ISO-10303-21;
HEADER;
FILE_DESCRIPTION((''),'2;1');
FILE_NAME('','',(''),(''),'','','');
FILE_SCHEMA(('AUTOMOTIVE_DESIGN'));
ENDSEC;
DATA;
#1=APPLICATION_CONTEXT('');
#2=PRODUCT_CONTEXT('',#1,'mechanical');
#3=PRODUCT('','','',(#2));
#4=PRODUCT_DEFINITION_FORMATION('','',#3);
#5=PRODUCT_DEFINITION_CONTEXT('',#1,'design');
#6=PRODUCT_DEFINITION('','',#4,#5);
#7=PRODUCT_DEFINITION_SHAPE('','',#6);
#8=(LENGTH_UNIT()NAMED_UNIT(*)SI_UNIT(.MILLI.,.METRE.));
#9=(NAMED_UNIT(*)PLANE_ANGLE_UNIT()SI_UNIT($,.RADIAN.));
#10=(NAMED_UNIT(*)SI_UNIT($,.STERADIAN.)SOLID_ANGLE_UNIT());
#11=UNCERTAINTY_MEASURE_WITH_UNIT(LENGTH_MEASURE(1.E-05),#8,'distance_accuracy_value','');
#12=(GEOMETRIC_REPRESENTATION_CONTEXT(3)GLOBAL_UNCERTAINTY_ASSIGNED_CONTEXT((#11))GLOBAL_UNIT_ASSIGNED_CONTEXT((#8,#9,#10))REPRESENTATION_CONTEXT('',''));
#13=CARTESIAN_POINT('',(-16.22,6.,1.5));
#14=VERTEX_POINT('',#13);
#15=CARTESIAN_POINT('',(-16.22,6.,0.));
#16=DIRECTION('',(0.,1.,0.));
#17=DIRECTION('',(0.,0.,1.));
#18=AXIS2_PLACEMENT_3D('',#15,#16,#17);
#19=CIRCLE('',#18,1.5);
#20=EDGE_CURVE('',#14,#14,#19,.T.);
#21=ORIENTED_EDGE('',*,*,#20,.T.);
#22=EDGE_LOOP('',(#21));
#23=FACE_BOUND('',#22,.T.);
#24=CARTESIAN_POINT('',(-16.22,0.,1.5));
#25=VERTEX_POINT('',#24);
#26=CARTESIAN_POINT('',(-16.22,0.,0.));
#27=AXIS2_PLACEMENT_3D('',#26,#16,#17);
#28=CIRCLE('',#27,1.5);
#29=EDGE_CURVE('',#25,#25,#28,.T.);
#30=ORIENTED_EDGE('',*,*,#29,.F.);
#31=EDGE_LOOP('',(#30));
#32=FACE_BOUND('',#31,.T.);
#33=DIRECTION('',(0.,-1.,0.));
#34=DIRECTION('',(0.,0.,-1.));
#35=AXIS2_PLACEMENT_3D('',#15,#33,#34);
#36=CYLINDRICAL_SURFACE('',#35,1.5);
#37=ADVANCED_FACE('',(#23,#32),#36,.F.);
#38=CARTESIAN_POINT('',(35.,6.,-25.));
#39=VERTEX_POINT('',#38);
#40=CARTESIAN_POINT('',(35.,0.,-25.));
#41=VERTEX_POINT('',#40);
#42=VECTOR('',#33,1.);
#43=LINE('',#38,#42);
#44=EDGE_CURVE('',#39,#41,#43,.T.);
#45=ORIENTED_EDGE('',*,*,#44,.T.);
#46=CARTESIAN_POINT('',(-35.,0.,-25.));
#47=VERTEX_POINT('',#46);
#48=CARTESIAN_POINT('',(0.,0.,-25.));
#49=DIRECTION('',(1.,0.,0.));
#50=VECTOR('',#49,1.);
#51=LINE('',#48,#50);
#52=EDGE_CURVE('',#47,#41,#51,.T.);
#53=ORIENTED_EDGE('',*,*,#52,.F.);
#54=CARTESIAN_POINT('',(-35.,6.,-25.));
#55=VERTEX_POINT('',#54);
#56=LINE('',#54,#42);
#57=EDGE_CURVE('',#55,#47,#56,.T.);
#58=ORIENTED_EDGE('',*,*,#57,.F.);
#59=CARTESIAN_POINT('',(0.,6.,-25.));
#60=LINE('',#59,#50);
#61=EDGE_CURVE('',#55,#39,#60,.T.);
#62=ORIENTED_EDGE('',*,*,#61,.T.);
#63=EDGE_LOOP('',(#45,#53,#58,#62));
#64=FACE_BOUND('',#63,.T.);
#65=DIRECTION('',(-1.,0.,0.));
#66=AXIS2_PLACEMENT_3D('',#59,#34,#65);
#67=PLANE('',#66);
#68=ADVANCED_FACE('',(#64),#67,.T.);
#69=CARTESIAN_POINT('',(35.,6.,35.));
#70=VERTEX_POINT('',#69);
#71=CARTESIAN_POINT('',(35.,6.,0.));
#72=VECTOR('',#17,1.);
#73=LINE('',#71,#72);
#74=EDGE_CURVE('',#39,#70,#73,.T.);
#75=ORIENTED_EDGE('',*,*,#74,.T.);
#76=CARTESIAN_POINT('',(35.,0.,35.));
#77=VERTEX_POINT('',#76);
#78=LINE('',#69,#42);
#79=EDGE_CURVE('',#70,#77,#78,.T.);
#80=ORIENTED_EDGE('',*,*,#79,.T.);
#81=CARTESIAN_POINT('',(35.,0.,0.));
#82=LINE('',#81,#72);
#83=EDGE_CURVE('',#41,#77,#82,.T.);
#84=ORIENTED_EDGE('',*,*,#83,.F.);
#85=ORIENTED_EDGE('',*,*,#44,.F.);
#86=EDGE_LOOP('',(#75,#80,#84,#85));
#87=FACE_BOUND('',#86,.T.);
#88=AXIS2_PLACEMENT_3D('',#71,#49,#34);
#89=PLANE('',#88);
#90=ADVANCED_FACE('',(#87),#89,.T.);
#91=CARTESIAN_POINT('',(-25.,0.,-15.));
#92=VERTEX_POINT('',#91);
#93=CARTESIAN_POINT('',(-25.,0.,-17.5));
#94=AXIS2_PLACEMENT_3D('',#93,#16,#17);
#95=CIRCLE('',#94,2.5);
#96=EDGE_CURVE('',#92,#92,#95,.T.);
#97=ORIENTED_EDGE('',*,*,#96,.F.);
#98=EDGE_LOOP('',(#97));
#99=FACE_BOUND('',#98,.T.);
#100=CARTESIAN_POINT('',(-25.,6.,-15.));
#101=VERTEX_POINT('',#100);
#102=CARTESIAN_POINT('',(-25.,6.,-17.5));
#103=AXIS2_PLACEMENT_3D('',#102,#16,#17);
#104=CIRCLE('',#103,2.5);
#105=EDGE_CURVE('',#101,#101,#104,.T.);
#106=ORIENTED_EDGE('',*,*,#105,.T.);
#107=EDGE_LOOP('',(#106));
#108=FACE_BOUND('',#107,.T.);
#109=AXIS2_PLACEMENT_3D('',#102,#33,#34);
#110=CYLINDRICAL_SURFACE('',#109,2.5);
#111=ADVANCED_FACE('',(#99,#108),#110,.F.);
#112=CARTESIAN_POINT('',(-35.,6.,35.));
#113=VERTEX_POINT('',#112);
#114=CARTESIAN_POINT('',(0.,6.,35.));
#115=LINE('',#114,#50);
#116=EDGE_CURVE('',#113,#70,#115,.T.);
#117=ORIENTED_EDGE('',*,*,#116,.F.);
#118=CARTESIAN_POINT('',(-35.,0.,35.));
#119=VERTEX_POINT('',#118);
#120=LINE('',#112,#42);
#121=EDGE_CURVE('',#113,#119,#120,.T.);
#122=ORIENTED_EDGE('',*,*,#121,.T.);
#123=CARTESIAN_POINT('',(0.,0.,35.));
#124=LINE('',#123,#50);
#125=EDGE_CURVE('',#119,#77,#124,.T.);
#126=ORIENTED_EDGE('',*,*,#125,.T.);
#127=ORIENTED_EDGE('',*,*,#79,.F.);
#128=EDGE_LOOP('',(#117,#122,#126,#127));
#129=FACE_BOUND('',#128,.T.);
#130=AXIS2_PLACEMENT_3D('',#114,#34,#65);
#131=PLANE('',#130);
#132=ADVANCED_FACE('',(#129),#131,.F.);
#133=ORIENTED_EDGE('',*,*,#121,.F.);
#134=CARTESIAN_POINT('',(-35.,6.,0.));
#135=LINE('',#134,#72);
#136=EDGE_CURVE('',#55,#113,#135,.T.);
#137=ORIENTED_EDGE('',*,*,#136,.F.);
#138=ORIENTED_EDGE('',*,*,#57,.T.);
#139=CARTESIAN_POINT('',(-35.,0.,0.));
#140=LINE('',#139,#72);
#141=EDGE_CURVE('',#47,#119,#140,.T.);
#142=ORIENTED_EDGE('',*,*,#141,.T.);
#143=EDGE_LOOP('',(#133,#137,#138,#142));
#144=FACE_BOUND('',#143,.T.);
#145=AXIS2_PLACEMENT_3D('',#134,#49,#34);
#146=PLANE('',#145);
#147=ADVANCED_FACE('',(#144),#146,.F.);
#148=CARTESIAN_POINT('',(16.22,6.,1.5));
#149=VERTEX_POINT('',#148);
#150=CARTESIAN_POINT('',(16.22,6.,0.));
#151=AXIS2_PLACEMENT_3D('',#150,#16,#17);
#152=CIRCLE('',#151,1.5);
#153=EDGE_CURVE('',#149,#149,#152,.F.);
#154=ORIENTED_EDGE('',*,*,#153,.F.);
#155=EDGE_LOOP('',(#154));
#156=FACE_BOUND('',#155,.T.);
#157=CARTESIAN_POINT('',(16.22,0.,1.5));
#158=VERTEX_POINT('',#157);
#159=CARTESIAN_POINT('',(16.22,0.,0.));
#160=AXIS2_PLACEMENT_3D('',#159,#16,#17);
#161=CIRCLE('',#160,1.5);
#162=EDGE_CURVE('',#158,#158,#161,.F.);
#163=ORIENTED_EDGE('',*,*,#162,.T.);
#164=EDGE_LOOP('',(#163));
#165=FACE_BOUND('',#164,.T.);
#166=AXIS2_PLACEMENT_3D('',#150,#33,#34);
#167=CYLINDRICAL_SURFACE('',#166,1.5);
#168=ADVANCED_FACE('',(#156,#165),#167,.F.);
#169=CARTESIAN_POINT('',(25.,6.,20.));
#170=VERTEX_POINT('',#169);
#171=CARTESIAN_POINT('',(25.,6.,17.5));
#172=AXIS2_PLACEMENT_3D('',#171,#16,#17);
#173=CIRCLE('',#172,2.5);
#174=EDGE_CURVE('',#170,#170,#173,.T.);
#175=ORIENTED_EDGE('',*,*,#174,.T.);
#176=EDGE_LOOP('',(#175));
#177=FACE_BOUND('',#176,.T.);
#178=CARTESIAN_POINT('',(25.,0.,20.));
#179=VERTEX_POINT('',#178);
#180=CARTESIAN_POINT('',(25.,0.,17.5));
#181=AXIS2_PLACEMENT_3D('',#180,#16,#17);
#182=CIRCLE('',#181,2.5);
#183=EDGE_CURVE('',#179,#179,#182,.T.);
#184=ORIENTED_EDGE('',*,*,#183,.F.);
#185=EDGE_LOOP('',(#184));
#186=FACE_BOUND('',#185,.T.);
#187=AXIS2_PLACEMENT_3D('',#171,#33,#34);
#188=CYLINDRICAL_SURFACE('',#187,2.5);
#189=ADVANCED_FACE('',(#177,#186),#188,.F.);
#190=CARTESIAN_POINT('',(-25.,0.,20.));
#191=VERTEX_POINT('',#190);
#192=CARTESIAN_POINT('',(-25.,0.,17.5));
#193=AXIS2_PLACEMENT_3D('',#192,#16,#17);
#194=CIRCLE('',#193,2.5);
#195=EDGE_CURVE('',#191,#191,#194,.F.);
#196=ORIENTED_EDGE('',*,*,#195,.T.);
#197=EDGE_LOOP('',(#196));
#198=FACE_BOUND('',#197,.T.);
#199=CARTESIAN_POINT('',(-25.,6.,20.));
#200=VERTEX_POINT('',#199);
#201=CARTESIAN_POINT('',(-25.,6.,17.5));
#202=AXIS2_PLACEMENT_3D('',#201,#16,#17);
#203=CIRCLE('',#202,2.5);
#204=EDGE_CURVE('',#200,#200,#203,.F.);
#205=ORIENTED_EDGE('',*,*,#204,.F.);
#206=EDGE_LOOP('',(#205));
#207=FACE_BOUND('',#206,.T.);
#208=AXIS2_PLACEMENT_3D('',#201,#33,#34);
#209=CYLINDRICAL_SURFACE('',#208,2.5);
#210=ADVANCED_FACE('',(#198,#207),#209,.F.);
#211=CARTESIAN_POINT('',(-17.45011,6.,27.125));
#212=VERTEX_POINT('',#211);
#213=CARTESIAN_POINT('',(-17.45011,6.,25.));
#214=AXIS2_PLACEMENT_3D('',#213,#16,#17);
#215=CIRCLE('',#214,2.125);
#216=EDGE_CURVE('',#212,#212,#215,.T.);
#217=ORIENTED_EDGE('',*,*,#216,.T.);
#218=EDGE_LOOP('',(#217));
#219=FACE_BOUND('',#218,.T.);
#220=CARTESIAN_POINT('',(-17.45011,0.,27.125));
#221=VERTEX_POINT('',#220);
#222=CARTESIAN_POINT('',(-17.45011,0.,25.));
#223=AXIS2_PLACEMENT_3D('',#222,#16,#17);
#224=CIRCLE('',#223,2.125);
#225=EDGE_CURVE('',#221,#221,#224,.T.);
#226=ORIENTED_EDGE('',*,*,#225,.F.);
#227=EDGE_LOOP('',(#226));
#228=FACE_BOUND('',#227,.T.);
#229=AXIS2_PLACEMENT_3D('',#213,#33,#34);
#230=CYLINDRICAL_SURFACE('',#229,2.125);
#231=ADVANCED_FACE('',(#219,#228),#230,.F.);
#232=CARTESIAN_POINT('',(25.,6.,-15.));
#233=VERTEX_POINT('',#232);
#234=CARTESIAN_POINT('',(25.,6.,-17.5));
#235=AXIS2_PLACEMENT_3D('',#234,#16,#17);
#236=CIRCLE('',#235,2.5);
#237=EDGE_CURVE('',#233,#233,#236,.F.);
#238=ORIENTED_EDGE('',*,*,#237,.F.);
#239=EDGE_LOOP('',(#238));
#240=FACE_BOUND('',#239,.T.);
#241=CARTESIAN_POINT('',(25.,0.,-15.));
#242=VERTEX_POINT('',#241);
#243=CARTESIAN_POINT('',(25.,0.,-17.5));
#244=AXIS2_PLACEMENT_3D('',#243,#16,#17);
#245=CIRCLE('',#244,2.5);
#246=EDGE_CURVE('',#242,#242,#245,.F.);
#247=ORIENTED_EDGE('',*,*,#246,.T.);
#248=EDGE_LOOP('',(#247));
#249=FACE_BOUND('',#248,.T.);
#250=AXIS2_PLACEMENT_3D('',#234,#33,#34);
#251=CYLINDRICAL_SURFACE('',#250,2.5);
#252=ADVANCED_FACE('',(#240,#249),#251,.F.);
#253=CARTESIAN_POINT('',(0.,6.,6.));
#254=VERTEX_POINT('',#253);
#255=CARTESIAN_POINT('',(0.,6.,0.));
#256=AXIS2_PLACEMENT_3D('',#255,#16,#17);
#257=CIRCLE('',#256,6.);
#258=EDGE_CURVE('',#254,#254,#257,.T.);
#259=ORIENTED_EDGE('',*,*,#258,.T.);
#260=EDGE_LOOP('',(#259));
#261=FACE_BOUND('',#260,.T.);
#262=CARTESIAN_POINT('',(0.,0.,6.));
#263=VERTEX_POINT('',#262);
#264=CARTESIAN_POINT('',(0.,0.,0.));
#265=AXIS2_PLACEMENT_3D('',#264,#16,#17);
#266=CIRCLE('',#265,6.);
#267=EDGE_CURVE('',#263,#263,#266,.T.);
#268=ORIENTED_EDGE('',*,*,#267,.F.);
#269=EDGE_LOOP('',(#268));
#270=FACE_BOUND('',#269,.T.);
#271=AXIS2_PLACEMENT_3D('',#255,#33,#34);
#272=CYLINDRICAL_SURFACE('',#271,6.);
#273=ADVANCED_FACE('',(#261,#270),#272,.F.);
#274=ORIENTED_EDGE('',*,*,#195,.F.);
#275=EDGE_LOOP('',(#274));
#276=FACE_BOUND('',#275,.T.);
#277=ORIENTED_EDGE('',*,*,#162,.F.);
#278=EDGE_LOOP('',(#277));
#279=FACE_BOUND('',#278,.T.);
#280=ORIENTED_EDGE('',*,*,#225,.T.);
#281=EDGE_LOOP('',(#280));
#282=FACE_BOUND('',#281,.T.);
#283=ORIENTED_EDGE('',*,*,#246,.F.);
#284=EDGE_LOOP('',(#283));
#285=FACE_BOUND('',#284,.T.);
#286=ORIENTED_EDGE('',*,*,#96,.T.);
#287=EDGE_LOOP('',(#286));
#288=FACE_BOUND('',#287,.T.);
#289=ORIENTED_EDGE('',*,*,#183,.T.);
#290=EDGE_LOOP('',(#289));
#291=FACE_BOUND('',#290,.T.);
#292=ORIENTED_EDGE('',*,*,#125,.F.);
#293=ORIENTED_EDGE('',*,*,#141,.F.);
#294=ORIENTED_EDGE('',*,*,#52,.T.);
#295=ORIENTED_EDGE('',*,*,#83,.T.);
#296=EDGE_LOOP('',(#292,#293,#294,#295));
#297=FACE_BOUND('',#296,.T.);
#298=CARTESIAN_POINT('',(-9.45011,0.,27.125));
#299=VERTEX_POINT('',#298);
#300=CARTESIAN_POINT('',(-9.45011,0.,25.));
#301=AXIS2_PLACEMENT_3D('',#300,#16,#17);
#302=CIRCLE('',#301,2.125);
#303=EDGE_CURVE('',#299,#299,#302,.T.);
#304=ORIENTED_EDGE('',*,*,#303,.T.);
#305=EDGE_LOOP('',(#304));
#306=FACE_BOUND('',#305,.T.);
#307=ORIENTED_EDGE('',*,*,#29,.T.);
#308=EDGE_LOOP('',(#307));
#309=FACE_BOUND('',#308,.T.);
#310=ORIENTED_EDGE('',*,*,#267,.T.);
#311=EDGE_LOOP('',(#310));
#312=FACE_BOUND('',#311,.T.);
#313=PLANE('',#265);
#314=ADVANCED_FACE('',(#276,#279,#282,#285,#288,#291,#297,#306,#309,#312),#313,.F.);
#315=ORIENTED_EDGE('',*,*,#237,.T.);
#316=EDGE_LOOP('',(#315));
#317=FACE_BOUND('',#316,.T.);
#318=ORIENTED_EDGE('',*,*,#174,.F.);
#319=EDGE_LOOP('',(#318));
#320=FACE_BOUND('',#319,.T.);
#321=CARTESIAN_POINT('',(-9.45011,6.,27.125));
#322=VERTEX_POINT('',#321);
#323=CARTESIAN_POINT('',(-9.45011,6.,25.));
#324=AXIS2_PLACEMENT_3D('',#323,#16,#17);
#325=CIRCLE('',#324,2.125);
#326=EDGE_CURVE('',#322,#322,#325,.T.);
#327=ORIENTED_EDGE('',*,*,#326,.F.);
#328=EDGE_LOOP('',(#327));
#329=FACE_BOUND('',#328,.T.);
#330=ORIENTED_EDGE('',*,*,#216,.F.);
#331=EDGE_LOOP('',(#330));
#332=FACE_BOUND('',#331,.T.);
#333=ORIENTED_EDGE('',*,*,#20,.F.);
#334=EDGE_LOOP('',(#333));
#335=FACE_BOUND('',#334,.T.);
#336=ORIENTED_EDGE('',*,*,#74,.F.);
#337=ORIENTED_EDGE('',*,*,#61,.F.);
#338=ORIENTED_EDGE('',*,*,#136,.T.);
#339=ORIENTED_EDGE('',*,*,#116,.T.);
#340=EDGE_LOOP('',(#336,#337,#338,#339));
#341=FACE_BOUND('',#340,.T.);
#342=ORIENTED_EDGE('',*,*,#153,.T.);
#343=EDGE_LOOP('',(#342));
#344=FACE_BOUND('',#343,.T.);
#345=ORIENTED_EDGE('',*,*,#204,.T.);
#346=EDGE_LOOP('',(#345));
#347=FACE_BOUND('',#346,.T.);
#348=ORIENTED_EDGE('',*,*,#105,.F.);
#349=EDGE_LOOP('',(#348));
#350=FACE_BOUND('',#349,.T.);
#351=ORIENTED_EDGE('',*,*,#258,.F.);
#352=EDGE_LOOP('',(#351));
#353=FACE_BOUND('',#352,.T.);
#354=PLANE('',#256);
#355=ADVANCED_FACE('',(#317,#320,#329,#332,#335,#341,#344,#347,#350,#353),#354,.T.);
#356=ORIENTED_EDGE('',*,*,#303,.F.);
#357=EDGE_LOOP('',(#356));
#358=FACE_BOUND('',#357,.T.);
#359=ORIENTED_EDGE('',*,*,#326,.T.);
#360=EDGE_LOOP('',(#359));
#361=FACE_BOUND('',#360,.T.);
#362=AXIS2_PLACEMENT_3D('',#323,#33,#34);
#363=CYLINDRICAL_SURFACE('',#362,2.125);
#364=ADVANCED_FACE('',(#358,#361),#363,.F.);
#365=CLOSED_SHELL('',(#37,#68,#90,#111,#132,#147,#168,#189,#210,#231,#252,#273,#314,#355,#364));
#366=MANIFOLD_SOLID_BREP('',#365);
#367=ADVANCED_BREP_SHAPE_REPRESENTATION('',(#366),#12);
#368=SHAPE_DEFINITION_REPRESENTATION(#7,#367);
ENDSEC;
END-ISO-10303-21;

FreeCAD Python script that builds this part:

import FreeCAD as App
import Part
import Sketcher

V = App.Vector

doc = App.newDocument("Part")
body = doc.addObject("PartDesign::Body", "Body")

# Sketch on XZ plane
sketch1 = doc.addObject("Sketcher::SketchObject", "Sketch")
body.addObject(sketch1)
sketch1.AttachmentSupport = (doc.XZ_Plane, [""])
sketch1.MapMode = "FlatFace"
sketch1.addGeometry([
    Part.LineSegment(V(-35, -25, 0), V(-35, 35, 0)),  # 0
    Part.LineSegment(V(-35, 35, 0), V(35, 35, 0)),  # 1
    Part.LineSegment(V(35, 35, 0), V(35, -25, 0)),  # 2
    Part.LineSegment(V(35, -25, 0), V(-35, -25, 0)),  # 3
    Part.Circle(V(-17.5, 25, 0), V(0, 0, 1), 2.1),  # 4
    Part.Circle(V(-25, 17.5, 0), V(0, 0, 1), 2.5),  # 5
    Part.Circle(V(-9.5, 25, 0), V(0, 0, 1), 2.1),  # 6
    Part.Circle(V(25, 17.5, 0), V(0, 0, 1), 2.5),  # 7
    Part.Circle(V(-16.2, 0, 0), V(0, 0, 1), 1.5),  # 8
    Part.Circle(V(-25, -17.5, 0), V(0, 0, 1), 2.5),  # 9
    Part.Circle(V(0, 0, 0), V(0, 0, 1), 6),  # 10
    Part.Circle(V(16.2, 0, 0), V(0, 0, 1), 1.5),  # 11
    Part.Circle(V(25, -17.5, 0), V(0, 0, 1), 2.5),  # 12
], False)
sketch1.addConstraint([
    Sketcher.Constraint("Coincident", 0, 2, 1, 1),
    Sketcher.Constraint("Coincident", 1, 2, 2, 1),
    Sketcher.Constraint("Coincident", 2, 2, 3, 1),
    Sketcher.Constraint("Coincident", 3, 2, 0, 1),
    Sketcher.Constraint("Vertical", 0),
    Sketcher.Constraint("Horizontal", 1),
    Sketcher.Constraint("Vertical", 2),
    Sketcher.Constraint("Horizontal", 3),
    Sketcher.Constraint("Coincident", 10, 3, -1, 1),
    Sketcher.Constraint("Equal", 4, 6),
    Sketcher.Constraint("Equal", 5, 7),
    Sketcher.Constraint("Equal", 7, 9),
    Sketcher.Constraint("Equal", 8, 11),
    Sketcher.Constraint("Equal", 9, 12),
    Sketcher.Constraint("Symmetric", 7, 3, 9, 3, -1, 1),
    Sketcher.Constraint("Symmetric", 8, 3, 11, 3, -1, 1),
    Sketcher.Constraint("Symmetric", 5, 3, 12, 3, -1, 1),
    Sketcher.Constraint("Symmetric", 5, 3, 7, 3, -2),
    Sketcher.Constraint("PointOnObject", 8, 3, -1),
    Sketcher.Constraint("Horizontal", 4, 3, 6, 3),
    Sketcher.Constraint("Diameter", 5, 5.0),
    Sketcher.Constraint("Diameter", 8, 3.0),
    Sketcher.Constraint("Diameter", 10, 12.0),
    Sketcher.Constraint("Diameter", 4, 4.25),
    Sketcher.Constraint("DistanceX", 1, 1, 1, 2, 70.0),
    Sketcher.Constraint("DistanceY", 0, 1, 0, 2, 60.0),
    Sketcher.Constraint("DistanceY", -1, 1, 4, 3, 25.0),
    Sketcher.Constraint("DistanceX", 5, 3, -1, 1, 25.0),
    Sketcher.Constraint("DistanceX", 0, 2, -1, 1, 35.0),
    Sketcher.Constraint("DistanceY", -1, 1, 0, 2, 35.0),
    Sketcher.Constraint("DistanceX", 4, 3, 6, 3, 8.0),
    Sketcher.Constraint("DistanceY", 9, 3, 5, 3, 35.0),
    Sketcher.Constraint("DistanceX", 8, 3, -1, 1, 16.22),
    Sketcher.Constraint("DistanceX", 4, 3, -1, 1, 17.45011),
])
pad1 = doc.addObject("PartDesign::Pad", "Pad")
body.addObject(pad1)
pad1.Profile = sketch1
pad1.Length = 6
pad1.Reversed = True

doc.recompute()
